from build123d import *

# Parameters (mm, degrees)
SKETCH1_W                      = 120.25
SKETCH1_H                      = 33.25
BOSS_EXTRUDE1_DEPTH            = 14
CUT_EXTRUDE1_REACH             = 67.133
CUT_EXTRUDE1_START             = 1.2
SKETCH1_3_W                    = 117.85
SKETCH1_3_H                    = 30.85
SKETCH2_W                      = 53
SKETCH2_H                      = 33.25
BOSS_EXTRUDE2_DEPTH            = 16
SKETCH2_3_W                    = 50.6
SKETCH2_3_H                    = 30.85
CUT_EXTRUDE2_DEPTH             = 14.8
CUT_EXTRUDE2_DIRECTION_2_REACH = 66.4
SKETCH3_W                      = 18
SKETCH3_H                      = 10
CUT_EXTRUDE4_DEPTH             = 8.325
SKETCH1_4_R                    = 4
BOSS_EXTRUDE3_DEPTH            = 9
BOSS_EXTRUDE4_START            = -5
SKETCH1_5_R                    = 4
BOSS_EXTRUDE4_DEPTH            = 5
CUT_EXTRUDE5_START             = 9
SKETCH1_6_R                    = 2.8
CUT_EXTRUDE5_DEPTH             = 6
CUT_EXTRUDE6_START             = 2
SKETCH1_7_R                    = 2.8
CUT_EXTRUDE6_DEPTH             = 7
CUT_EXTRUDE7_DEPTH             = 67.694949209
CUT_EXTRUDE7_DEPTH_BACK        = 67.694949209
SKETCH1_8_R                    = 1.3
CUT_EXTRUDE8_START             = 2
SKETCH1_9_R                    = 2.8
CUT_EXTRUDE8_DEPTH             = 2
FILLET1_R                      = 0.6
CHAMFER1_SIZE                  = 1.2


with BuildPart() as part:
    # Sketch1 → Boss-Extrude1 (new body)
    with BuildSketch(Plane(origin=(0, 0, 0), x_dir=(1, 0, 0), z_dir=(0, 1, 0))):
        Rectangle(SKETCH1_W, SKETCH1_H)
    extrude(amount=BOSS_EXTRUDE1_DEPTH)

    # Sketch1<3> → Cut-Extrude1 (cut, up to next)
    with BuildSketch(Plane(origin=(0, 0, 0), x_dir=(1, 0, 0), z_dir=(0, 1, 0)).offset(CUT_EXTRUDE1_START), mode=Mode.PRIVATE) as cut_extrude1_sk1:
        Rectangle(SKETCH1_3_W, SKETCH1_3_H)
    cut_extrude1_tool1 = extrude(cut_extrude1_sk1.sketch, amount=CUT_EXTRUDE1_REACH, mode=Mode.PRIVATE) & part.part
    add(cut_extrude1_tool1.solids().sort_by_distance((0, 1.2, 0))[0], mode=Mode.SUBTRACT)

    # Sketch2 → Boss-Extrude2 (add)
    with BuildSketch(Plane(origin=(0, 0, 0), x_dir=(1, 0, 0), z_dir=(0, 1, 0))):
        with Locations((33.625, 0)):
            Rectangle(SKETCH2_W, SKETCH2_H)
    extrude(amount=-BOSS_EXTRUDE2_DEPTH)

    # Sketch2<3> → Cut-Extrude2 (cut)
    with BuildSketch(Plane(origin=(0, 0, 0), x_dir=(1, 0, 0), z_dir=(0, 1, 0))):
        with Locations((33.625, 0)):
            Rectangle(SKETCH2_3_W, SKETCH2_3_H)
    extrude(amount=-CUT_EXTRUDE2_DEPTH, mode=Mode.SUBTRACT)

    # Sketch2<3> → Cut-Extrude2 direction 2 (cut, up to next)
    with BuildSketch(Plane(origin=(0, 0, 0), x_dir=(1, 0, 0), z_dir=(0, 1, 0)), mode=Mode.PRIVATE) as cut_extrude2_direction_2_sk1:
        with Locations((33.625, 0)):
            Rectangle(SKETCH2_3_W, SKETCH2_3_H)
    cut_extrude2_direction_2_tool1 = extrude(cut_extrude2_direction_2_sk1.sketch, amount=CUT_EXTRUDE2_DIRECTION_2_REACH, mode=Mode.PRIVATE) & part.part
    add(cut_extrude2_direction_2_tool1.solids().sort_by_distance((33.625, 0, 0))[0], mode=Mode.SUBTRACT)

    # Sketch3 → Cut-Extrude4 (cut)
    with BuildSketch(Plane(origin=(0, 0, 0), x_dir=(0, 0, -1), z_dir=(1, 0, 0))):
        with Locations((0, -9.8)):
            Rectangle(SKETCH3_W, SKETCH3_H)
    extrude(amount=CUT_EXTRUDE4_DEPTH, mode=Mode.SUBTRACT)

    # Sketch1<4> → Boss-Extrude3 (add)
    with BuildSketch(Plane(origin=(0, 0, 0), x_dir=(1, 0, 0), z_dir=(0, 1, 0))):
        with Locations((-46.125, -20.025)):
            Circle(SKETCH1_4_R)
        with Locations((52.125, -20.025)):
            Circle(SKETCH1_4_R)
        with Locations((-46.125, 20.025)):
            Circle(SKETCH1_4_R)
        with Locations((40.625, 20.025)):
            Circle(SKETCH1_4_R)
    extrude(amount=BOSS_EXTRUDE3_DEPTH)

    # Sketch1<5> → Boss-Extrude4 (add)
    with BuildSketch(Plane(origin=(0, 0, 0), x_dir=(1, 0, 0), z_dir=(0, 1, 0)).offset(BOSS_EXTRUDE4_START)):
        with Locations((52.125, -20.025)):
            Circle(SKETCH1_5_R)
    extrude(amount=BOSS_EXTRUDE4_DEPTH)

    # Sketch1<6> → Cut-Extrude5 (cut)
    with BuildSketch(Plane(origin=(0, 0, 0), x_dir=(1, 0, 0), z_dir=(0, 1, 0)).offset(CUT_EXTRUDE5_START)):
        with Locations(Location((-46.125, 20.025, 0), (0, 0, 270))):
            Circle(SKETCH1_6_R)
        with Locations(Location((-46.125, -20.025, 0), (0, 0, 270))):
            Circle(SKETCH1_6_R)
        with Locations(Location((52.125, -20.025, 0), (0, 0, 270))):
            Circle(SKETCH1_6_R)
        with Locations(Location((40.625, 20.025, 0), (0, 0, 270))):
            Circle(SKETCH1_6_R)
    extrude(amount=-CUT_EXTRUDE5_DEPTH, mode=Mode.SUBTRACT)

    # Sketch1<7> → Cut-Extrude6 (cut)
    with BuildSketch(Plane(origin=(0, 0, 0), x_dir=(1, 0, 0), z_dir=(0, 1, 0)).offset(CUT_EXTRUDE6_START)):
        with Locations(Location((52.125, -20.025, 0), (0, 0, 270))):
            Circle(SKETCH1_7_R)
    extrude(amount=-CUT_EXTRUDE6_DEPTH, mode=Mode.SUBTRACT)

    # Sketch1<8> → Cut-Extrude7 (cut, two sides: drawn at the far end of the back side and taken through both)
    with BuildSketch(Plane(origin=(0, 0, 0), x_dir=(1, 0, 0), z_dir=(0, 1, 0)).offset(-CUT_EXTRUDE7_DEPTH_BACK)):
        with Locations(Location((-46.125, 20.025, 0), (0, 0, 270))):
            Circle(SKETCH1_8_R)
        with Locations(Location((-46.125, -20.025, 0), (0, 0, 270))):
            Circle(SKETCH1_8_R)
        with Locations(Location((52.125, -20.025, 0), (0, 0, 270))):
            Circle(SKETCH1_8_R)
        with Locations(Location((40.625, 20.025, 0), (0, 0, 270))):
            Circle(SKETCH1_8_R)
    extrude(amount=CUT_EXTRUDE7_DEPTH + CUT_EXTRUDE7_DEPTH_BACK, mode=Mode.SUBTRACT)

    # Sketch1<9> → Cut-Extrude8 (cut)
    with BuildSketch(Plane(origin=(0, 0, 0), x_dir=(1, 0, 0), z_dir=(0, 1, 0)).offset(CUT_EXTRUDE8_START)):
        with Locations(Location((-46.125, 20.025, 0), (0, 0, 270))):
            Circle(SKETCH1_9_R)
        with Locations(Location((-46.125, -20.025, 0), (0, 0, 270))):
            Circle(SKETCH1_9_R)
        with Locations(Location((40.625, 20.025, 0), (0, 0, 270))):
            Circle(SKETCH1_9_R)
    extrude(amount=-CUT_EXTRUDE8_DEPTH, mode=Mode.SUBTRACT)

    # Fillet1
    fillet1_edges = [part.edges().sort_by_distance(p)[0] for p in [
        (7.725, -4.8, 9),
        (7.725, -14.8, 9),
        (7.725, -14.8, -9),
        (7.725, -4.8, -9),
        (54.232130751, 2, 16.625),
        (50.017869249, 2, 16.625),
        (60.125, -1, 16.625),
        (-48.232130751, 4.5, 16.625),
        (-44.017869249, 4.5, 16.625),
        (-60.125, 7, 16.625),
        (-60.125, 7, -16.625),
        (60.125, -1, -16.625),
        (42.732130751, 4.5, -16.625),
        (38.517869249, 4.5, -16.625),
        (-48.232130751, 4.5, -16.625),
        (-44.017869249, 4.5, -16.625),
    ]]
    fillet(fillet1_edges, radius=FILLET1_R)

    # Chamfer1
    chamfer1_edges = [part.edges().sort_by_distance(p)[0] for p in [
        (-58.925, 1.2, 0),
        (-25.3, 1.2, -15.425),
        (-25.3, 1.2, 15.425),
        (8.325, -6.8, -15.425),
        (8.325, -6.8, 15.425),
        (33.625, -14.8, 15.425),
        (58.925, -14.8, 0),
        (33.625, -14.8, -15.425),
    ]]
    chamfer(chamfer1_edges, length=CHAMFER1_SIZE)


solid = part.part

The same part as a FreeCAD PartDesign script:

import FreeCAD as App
import Part
import Sketcher
from FreeCAD import Vector
Q = App.Units.Quantity


def edges_at(feature, points):
    """Names of the edges that pass closest to the given points."""
    edges = feature.Shape.Edges
    near = lambda p: min(range(len(edges)), key=lambda i: edges[i].distToShape(Part.Vertex(*p))[0])
    return sorted({f"Edge{near(p) + 1}" for p in points})

doc = App.newDocument("Part")
params = doc.addObject("Spreadsheet::Sheet", "Params")
for row, (alias, value) in enumerate([
    ("sketch1_width", "120.25 mm"),
    ("sketch1_height", "33.25 mm"),
    ("pad1_length", "14 mm"),
    ("sketch2_width", "117.85 mm"),
    ("sketch2_height", "30.85 mm"),
    ("sketch3_width", "53 mm"),
    ("sketch3_height", "33.25 mm"),
    ("pad2_length", "16 mm"),
    ("sketch4_width", "50.6 mm"),
    ("sketch4_height", "30.85 mm"),
    ("pocket2_length", "14.8 mm"),
    ("sketch5_width", "50.6 mm"),
    ("sketch5_height", "30.85 mm"),
    ("sketch6_width", "10 mm"),
    ("sketch6_height", "18 mm"),
    ("pocket4_length", "8.325 mm"),
    ("sketch7_diameter", "8 mm"),
    ("pad3_length", "9 mm"),
    ("sketch8_diameter", "8 mm"),
    ("pad4_length", "5 mm"),
    ("sketch9_diameter", "5.6 mm"),
    ("pocket5_length", "6 mm"),
    ("sketch10_diameter", "5.6 mm"),
    ("pocket6_length", "7 mm"),
    ("sketch11_diameter", "2.6 mm"),
    ("sketch12_diameter", "5.6 mm"),
    ("pocket8_length", "2 mm"),
    ("fillet_radius", "0.6 mm"),
    ("chamfer_size", "1.2 mm"),
], start=1):
    params.set(f"A{row}", alias)
    params.set(f"B{row}", "=" + value)
    params.setAlias(f"B{row}", alias)

body = doc.addObject("PartDesign::Body", "Body")

# Sketch on XZ plane
sketch1 = body.newObject("Sketcher::SketchObject", "Sketch")
sketch1.AttachmentSupport = (doc.getObject("XZ_Plane"), [""])
sketch1.MapMode = "FlatFace"
sketch1.addGeometry([
    Part.LineSegment(Vector(-60, -17, 0), Vector(-60, 17, 0)),
    Part.LineSegment(Vector(-60, 17, 0), Vector(60, 17, 0)),
    Part.LineSegment(Vector(60, 17, 0), Vector(60, -17, 0)),
    Part.LineSegment(Vector(60, -17, 0), Vector(-60, -17, 0)),
], False)
sketch1.addConstraint([
    Sketcher.Constraint("Coincident", 0, 2, 1, 1),
    Sketcher.Constraint("Coincident", 1, 2, 2, 1),
    Sketcher.Constraint("Coincident", 2, 2, 3, 1),
    Sketcher.Constraint("Coincident", 3, 2, 0, 1),
    Sketcher.Constraint("Vertical", 0),
    Sketcher.Constraint("Horizontal", 1),
    Sketcher.Constraint("Vertical", 2),
    Sketcher.Constraint("Horizontal", 3),
    Sketcher.Constraint("Symmetric", 0, 2, 2, 2, -1, 1),
    Sketcher.Constraint("DistanceX", 1, 1, 1, 2, Q("120.25 mm")),
    Sketcher.Constraint("DistanceY", 0, 1, 0, 2, Q("33.25 mm")),
])
sketch1.setExpression("Constraints[9]", "Params.sketch1_width")
sketch1.setExpression("Constraints[10]", "Params.sketch1_height")
pad1 = body.newObject("PartDesign::Pad", "Pad")
pad1.Profile = sketch1
pad1.setExpression("Length", "Params.pad1_length")
pad1.Reversed = True

# Sketch on XZ plane
sketch2 = body.newObject("Sketcher::SketchObject", "Sketch001")
sketch2.AttachmentSupport = (doc.getObject("XZ_Plane"), [""])
sketch2.MapMode = "FlatFace"
sketch2.AttachmentOffset = App.Placement(Vector(0, 0, -1.2), App.Rotation())
sketch2.addGeometry([
    Part.LineSegment(Vector(-59, -15, 0), Vector(-59, 15, 0)),
    Part.LineSegment(Vector(-59, 15, 0), Vector(59, 15, 0)),
    Part.LineSegment(Vector(59, 15, 0), Vector(59, -15, 0)),
    Part.LineSegment(Vector(59, -15, 0), Vector(-59, -15, 0)),
], False)
sketch2.addConstraint([
    Sketcher.Constraint("Coincident", 0, 2, 1, 1),
    Sketcher.Constraint("Coincident", 1, 2, 2, 1),
    Sketcher.Constraint("Coincident", 2, 2, 3, 1),
    Sketcher.Constraint("Coincident", 3, 2, 0, 1),
    Sketcher.Constraint("Vertical", 0),
    Sketcher.Constraint("Horizontal", 1),
    Sketcher.Constraint("Vertical", 2),
    Sketcher.Constraint("Horizontal", 3),
    Sketcher.Constraint("Symmetric", 0, 2, 2, 2, -1, 1),
    Sketcher.Constraint("DistanceX", 1, 1, 1, 2, Q("117.85 mm")),
    Sketcher.Constraint("DistanceY", 0, 1, 0, 2, Q("30.85 mm")),
])
sketch2.setExpression("Constraints[9]", "Params.sketch2_width")
sketch2.setExpression("Constraints[10]", "Params.sketch2_height")
pocket1 = body.newObject("PartDesign::Pocket", "Pocket")
pocket1.Profile = sketch2
pocket1.Type = "UpToFirst"

# Sketch on XZ plane
sketch3 = body.newObject("Sketcher::SketchObject", "Sketch002")
sketch3.AttachmentSupport = (doc.getObject("XZ_Plane"), [""])
sketch3.MapMode = "FlatFace"
sketch3.addGeometry([
    Part.LineSegment(Vector(7, -17, 0), Vector(7, 17, 0)),
    Part.LineSegment(Vector(7, 17, 0), Vector(60, 17, 0)),
    Part.LineSegment(Vector(60, 17, 0), Vector(60, -17, 0)),
    Part.LineSegment(Vector(60, -17, 0), Vector(7, -17, 0)),
], False)
sketch3.addConstraint([
    Sketcher.Constraint("Coincident", 0, 2, 1, 1),
    Sketcher.Constraint("Coincident", 1, 2, 2, 1),
    Sketcher.Constraint("Coincident", 2, 2, 3, 1),
    Sketcher.Constraint("Coincident", 3, 2, 0, 1),
    Sketcher.Constraint("Vertical", 0),
    Sketcher.Constraint("Horizontal", 1),
    Sketcher.Constraint("Vertical", 2),
    Sketcher.Constraint("Horizontal", 3),
    Sketcher.Constraint("DistanceX", 1, 1, 1, 2, Q("53 mm")),
    Sketcher.Constraint("DistanceY", 0, 1, 0, 2, Q("33.25 mm")),
    Sketcher.Constraint("DistanceX", -1, 1, 0, 2, Q("7.125 mm")),
    Sketcher.Constraint("DistanceY", -1, 1, 0, 2, Q("16.625 mm")),
])
sketch3.setExpression("Constraints[8]", "Params.sketch3_width")
sketch3.setExpression("Constraints[9]", "Params.sketch3_height")
pad2 = body.newObject("PartDesign::Pad", "Pad001")
pad2.Profile = sketch3
pad2.setExpression("Length", "Params.pad2_length")

# Sketch on XZ plane
sketch4 = body.newObject("Sketcher::SketchObject", "Sketch003")
sketch4.AttachmentSupport = (doc.getObject("XZ_Plane"), [""])
sketch4.MapMode = "FlatFace"
sketch4.addGeometry([
    Part.LineSegment(Vector(8, -15, 0), Vector(8, 15, 0)),
    Part.LineSegment(Vector(8, 15, 0), Vector(59, 15, 0)),
    Part.LineSegment(Vector(59, 15, 0), Vector(59, -15, 0)),
    Part.LineSegment(Vector(59, -15, 0), Vector(8, -15, 0)),
], False)
sketch4.addConstraint([
    Sketcher.Constraint("Coincident", 0, 2, 1, 1),
    Sketcher.Constraint("Coincident", 1, 2, 2, 1),
    Sketcher.Constraint("Coincident", 2, 2, 3, 1),
    Sketcher.Constraint("Coincident", 3, 2, 0, 1),
    Sketcher.Constraint("Vertical", 0),
    Sketcher.Constraint("Horizontal", 1),
    Sketcher.Constraint("Vertical", 2),
    Sketcher.Constraint("Horizontal", 3),
    Sketcher.Constraint("DistanceX", 1, 1, 1, 2, Q("50.6 mm")),
    Sketcher.Constraint("DistanceY", 0, 1, 0, 2, Q("30.85 mm")),
    Sketcher.Constraint("DistanceX", -1, 1, 0, 2, Q("8.325 mm")),
    Sketcher.Constraint("DistanceY", -1, 1, 0, 2, Q("15.425 mm")),
])
sketch4.setExpression("Constraints[8]", "Params.sketch4_width")
sketch4.setExpression("Constraints[9]", "Params.sketch4_height")
pocket2 = body.newObject("PartDesign::Pocket", "Pocket001")
pocket2.Profile = sketch4
pocket2.setExpression("Length", "Params.pocket2_length")
pocket2.Reversed = True

# Sketch on XZ plane
sketch5 = body.newObject("Sketcher::SketchObject", "Sketch004")
sketch5.AttachmentSupport = (doc.getObject("XZ_Plane"), [""])
sketch5.MapMode = "FlatFace"
sketch5.addGeometry([
    Part.LineSegment(Vector(8, -15, 0), Vector(8, 15, 0)),
    Part.LineSegment(Vector(8, 15, 0), Vector(59, 15, 0)),
    Part.LineSegment(Vector(59, 15, 0), Vector(59, -15, 0)),
    Part.LineSegment(Vector(59, -15, 0), Vector(8, -15, 0)),
], False)
sketch5.addConstraint([
    Sketcher.Constraint("Coincident", 0, 2, 1, 1),
    Sketcher.Constraint("Coincident", 1, 2, 2, 1),
    Sketcher.Constraint("Coincident", 2, 2, 3, 1),
    Sketcher.Constraint("Coincident", 3, 2, 0, 1),
    Sketcher.Constraint("Vertical", 0),
    Sketcher.Constraint("Horizontal", 1),
    Sketcher.Constraint("Vertical", 2),
    Sketcher.Constraint("Horizontal", 3),
    Sketcher.Constraint("DistanceX", 1, 1, 1, 2, Q("50.6 mm")),
    Sketcher.Constraint("DistanceY", 0, 1, 0, 2, Q("30.85 mm")),
    Sketcher.Constraint("DistanceX", -1, 1, 0, 2, Q("8.325 mm")),
    Sketcher.Constraint("DistanceY", -1, 1, 0, 2, Q("15.425 mm")),
])
sketch5.setExpression("Constraints[8]", "Params.sketch5_width")
sketch5.setExpression("Constraints[9]", "Params.sketch5_height")
pocket3 = body.newObject("PartDesign::Pocket", "Pocket002")
pocket3.Profile = sketch5
pocket3.Type = "UpToFirst"

# Sketch on YZ plane
sketch6 = body.newObject("Sketcher::SketchObject", "Sketch005")
sketch6.AttachmentSupport = (doc.getObject("YZ_Plane"), [""])
sketch6.MapMode = "FlatFace"
sketch6.addGeometry([
    Part.LineSegment(Vector(-5, 9, 0), Vector(-15, 9, 0)),
    Part.LineSegment(Vector(-15, 9, 0), Vector(-15, -9, 0)),
    Part.LineSegment(Vector(-15, -9, 0), Vector(-5, -9, 0)),
    Part.LineSegment(Vector(-5, -9, 0), Vector(-5, 9, 0)),
], False)
sketch6.addConstraint([
    Sketcher.Constraint("Coincident", 0, 2, 1, 1),
    Sketcher.Constraint("Coincident", 1, 2, 2, 1),
    Sketcher.Constraint("Coincident", 2, 2, 3, 1),
    Sketcher.Constraint("Coincident", 3, 2, 0, 1),
    Sketcher.Constraint("Horizontal", 0),
    Sketcher.Constraint("Vertical", 1),
    Sketcher.Constraint("Horizontal", 2),
    Sketcher.Constraint("Vertical", 3),
    Sketcher.Constraint("DistanceX", 0, 2, 0, 1, Q("10 mm")),
    Sketcher.Constraint("DistanceY", 1, 2, 1, 1, Q("18 mm")),
    Sketcher.Constraint("DistanceY", -1, 1, 0, 2, Q("9 mm")),
    Sketcher.Constraint("DistanceX", 0, 2, -1, 1, Q("14.8 mm")),
])
sketch6.setExpression("Constraints[8]", "Params.sketch6_width")
sketch6.setExpression("Constraints[9]", "Params.sketch6_height")
pocket4 = body.newObject("PartDesign::Pocket", "Pocket003")
pocket4.Profile = sketch6
pocket4.setExpression("Length", "Params.pocket4_length")
pocket4.Reversed = True

# Sketch on XZ plane
sketch7 = body.newObject("Sketcher::SketchObject", "Sketch006")
sketch7.AttachmentSupport = (doc.getObject("XZ_Plane"), [""])
sketch7.MapMode = "FlatFace"
sketch7.addGeometry([
    Part.Circle(Vector(-46.1, 20, 0), Vector(0, 0, 1), 4),
    Part.Circle(Vector(52.1, 20, 0), Vector(0, 0, 1), 4),
    Part.Circle(Vector(-46.1, -20, 0), Vector(0, 0, 1), 4),
    Part.Circle(Vector(40.6, -20, 0), Vector(0, 0, 1), 4),
], False)
sketch7.addConstraint([
    Sketcher.Constraint("Equal", 0, 1),
    Sketcher.Constraint("Equal", 1, 2),
    Sketcher.Constraint("Equal", 2, 3),
    Sketcher.Constraint("Symmetric", 0, 3, 2, 3, -1),
    Sketcher.Constraint("Horizontal", 0, 3, 1, 3),
    Sketcher.Constraint("Horizontal", 2, 3, 3, 3),
    Sketcher.Constraint("Diameter", 0, Q("8 mm")),
    Sketcher.Constraint("DistanceX", 3, 3, 1, 3, Q("11.5 mm")),
    Sketcher.Constraint("DistanceX", 0, 3, 1, 3, Q("98.25 mm")),
    Sketcher.Constraint("DistanceY", 2, 3, 0, 3, Q("40.05 mm")),
    Sketcher.Constraint("DistanceX", 0, 3, -1, 1, Q("46.125 mm")),
])
sketch7.setExpression("Constraints[6]", "Params.sketch7_diameter")
pad3 = body.newObject("PartDesign::Pad", "Pad002")
pad3.Profile = sketch7
pad3.setExpression("Length", "Params.pad3_length")
pad3.Reversed = True

# Sketch on XZ plane
sketch8 = body.newObject("Sketcher::SketchObject", "Sketch007")
sketch8.AttachmentSupport = (doc.getObject("XZ_Plane"), [""])
sketch8.MapMode = "FlatFace"
sketch8.AttachmentOffset = App.Placement(Vector(0, 0, 5), App.Rotation())
sketch8.addGeometry(Part.Circle(Vector(52.1, 20, 0), Vector(0, 0, 1), 4), False)
sketch8.addConstraint([
    Sketcher.Constraint("Diameter", 0, Q("8 mm")),
    Sketcher.Constraint("DistanceX", -1, 1, 0, 3, Q("52.125 mm")),
    Sketcher.Constraint("DistanceY", -1, 1, 0, 3, Q("20.025 mm")),
])
sketch8.setExpression("Constraints[0]", "Params.sketch8_diameter")
pad4 = body.newObject("PartDesign::Pad", "Pad003")
pad4.Profile = sketch8
pad4.setExpression("Length", "Params.pad4_length")
pad4.Reversed = True

# Sketch on XZ plane
sketch9 = body.newObject("Sketcher::SketchObject", "Sketch008")
sketch9.AttachmentSupport = (doc.getObject("XZ_Plane"), [""])
sketch9.MapMode = "FlatFace"
sketch9.AttachmentOffset = App.Placement(Vector(0, 0, -9), App.Rotation())
sketch9.addGeometry([
    Part.Circle(Vector(-46.1, -20, 0), Vector(0, 0, 1), 2.8),
    Part.Circle(Vector(-46.1, 20, 0), Vector(0, 0, 1), 2.8),
    Part.Circle(Vector(52.1, 20, 0), Vector(0, 0, 1), 2.8),
    Part.Circle(Vector(40.6, -20, 0), Vector(0, 0, 1), 2.8),
], False)
sketch9.addConstraint([
    Sketcher.Constraint("Equal", 0, 1),
    Sketcher.Constraint("Equal", 1, 2),
    Sketcher.Constraint("Equal", 2, 3),
    Sketcher.Constraint("Symmetric", 0, 3, 1, 3, -1),
    Sketcher.Constraint("Horizontal", 1, 3, 2, 3),
    Sketcher.Constraint("Horizontal", 0, 3, 3, 3),
    Sketcher.Constraint("Diameter", 0, Q("5.6 mm")),
    Sketcher.Constraint("DistanceX", 3, 3, 2, 3, Q("11.5 mm")),
    Sketcher.Constraint("DistanceY", 0, 3, 1, 3, Q("40.05 mm")),
    Sketcher.Constraint("DistanceX", 1, 3, 2, 3, Q("98.25 mm")),
    Sketcher.Constraint("DistanceX", 0, 3, -1, 1, Q("46.125 mm")),
])
sketch9.setExpression("Constraints[6]", "Params.sketch9_diameter")
pocket5 = body.newObject("PartDesign::Pocket", "Pocket004")
pocket5.Profile = sketch9
pocket5.setExpression("Length", "Params.pocket5_length")
pocket5.Reversed = True

# Sketch on XZ plane
sketch10 = body.newObject("Sketcher::SketchObject", "Sketch009")
sketch10.AttachmentSupport = (doc.getObject("XZ_Plane"), [""])
sketch10.MapMode = "FlatFace"
sketch10.AttachmentOffset = App.Placement(Vector(0, 0, -2), App.Rotation())
sketch10.addGeometry(Part.Circle(Vector(52.1, 20, 0), Vector(0, 0, 1), 2.8), False)
sketch10.addConstraint([
    Sketcher.Constraint("Diameter", 0, Q("5.6 mm")),
    Sketcher.Constraint("DistanceX", -1, 1, 0, 3, Q("52.125 mm")),
    Sketcher.Constraint("DistanceY", -1, 1, 0, 3, Q("20.025 mm")),
])
sketch10.setExpression("Constraints[0]", "Params.sketch10_diameter")
pocket6 = body.newObject("PartDesign::Pocket", "Pocket005")
pocket6.Profile = sketch10
pocket6.setExpression("Length", "Params.pocket6_length")
pocket6.Reversed = True

# Sketch on XZ plane
sketch11 = body.newObject("Sketcher::SketchObject", "Sketch010")
sketch11.AttachmentSupport = (doc.getObject("XZ_Plane"), [""])
sketch11.MapMode = "FlatFace"
sketch11.addGeometry([
    Part.Circle(Vector(-46.1, -20, 0), Vector(0, 0, 1), 1.3),
    Part.Circle(Vector(-46.1, 20, 0), Vector(0, 0, 1), 1.3),
    Part.Circle(Vector(52.1, 20, 0), Vector(0, 0, 1), 1.3),
    Part.Circle(Vector(40.6, -20, 0), Vector(0, 0, 1), 1.3),
], False)
sketch11.addConstraint([
    Sketcher.Constraint("Equal", 0, 1),
    Sketcher.Constraint("Equal", 1, 2),
    Sketcher.Constraint("Equal", 2, 3),
    Sketcher.Constraint("Symmetric", 0, 3, 1, 3, -1),
    Sketcher.Constraint("Horizontal", 1, 3, 2, 3),
    Sketcher.Constraint("Horizontal", 0, 3, 3, 3),
    Sketcher.Constraint("Diameter", 0, Q("2.6 mm")),
    Sketcher.Constraint("DistanceX", 3, 3, 2, 3, Q("11.5 mm")),
    Sketcher.Constraint("DistanceY", 0, 3, 1, 3, Q("40.05 mm")),
    Sketcher.Constraint("DistanceX", 1, 3, 2, 3, Q("98.25 mm")),
    Sketcher.Constraint("DistanceX", 0, 3, -1, 1, Q("46.125 mm")),
])
sketch11.setExpression("Constraints[6]", "Params.sketch11_diameter")
pocket7 = body.newObject("PartDesign::Pocket", "Pocket006")
pocket7.Profile = sketch11
pocket7.Type = "ThroughAll"
pocket7.Midplane = True

# Sketch on XZ plane
sketch12 = body.newObject("Sketcher::SketchObject", "Sketch011")
sketch12.AttachmentSupport = (doc.getObject("XZ_Plane"), [""])
sketch12.MapMode = "FlatFace"
sketch12.AttachmentOffset = App.Placement(Vector(0, 0, -2), App.Rotation())
sketch12.addGeometry([
    Part.Circle(Vector(-46.1, -20, 0), Vector(0, 0, 1), 2.8),
    Part.Circle(Vector(-46.1, 20, 0), Vector(0, 0, 1), 2.8),
    Part.Circle(Vector(40.6, -20, 0), Vector(0, 0, 1), 2.8),
], False)
sketch12.addConstraint([
    Sketcher.Constraint("Equal", 0, 1),
    Sketcher.Constraint("Equal", 1, 2),
    Sketcher.Constraint("Symmetric", 0, 3, 1, 3, -1),
    Sketcher.Constraint("Horizontal", 0, 3, 2, 3),
    Sketcher.Constraint("Diameter", 0, Q("5.6 mm")),
    Sketcher.Constraint("DistanceY", 0, 3, 1, 3, Q("40.05 mm")),
    Sketcher.Constraint("DistanceX", 0, 3, 2, 3, Q("86.75 mm")),
    Sketcher.Constraint("DistanceX", 0, 3, -1, 1, Q("46.125 mm")),
])
sketch12.setExpression("Constraints[4]", "Params.sketch12_diameter")
pocket8 = body.newObject("PartDesign::Pocket", "Pocket007")
pocket8.Profile = sketch12
pocket8.setExpression("Length", "Params.pocket8_length")
pocket8.Reversed = True
doc.recompute()

fillet = body.newObject("PartDesign::Fillet", "Fillet")
fillet.Base = (pocket8, edges_at(pocket8, [
    (7.725, -4.8, 9),
    (7.725, -14.8, 9),
    (7.725, -14.8, -9),
    (7.725, -4.8, -9),
    (54.232, 2, 16.625),
    (50.018, 2, 16.625),
    (60.125, -1, 16.625),
    (-48.232, 4.5, 16.625),
    (-44.018, 4.5, 16.625),
    (-60.125, 7, 16.625),
    (-60.125, 7, -16.625),
    (60.125, -1, -16.625),
    (42.732, 4.5, -16.625),
    (38.518, 4.5, -16.625),
    (-48.232, 4.5, -16.625),
    (-44.018, 4.5, -16.625),
]))
fillet.setExpression("Radius", "Params.fillet_radius")
doc.recompute()

chamfer = body.newObject("PartDesign::Chamfer", "Chamfer")
chamfer.Base = (fillet, edges_at(fillet, [
    (-58.925, 1.2, 0),
    (-25.3, 1.2, -15.425),
    (-25.3, 1.2, 15.425),
    (8.325, -6.8, -15.425),
    (8.325, -6.8, 15.425),
    (33.625, -14.8, 15.425),
    (58.925, -14.8, 0),
    (33.625, -14.8, -15.425),
]))
chamfer.setExpression("Size", "Params.chamfer_size")

doc.recompute()
